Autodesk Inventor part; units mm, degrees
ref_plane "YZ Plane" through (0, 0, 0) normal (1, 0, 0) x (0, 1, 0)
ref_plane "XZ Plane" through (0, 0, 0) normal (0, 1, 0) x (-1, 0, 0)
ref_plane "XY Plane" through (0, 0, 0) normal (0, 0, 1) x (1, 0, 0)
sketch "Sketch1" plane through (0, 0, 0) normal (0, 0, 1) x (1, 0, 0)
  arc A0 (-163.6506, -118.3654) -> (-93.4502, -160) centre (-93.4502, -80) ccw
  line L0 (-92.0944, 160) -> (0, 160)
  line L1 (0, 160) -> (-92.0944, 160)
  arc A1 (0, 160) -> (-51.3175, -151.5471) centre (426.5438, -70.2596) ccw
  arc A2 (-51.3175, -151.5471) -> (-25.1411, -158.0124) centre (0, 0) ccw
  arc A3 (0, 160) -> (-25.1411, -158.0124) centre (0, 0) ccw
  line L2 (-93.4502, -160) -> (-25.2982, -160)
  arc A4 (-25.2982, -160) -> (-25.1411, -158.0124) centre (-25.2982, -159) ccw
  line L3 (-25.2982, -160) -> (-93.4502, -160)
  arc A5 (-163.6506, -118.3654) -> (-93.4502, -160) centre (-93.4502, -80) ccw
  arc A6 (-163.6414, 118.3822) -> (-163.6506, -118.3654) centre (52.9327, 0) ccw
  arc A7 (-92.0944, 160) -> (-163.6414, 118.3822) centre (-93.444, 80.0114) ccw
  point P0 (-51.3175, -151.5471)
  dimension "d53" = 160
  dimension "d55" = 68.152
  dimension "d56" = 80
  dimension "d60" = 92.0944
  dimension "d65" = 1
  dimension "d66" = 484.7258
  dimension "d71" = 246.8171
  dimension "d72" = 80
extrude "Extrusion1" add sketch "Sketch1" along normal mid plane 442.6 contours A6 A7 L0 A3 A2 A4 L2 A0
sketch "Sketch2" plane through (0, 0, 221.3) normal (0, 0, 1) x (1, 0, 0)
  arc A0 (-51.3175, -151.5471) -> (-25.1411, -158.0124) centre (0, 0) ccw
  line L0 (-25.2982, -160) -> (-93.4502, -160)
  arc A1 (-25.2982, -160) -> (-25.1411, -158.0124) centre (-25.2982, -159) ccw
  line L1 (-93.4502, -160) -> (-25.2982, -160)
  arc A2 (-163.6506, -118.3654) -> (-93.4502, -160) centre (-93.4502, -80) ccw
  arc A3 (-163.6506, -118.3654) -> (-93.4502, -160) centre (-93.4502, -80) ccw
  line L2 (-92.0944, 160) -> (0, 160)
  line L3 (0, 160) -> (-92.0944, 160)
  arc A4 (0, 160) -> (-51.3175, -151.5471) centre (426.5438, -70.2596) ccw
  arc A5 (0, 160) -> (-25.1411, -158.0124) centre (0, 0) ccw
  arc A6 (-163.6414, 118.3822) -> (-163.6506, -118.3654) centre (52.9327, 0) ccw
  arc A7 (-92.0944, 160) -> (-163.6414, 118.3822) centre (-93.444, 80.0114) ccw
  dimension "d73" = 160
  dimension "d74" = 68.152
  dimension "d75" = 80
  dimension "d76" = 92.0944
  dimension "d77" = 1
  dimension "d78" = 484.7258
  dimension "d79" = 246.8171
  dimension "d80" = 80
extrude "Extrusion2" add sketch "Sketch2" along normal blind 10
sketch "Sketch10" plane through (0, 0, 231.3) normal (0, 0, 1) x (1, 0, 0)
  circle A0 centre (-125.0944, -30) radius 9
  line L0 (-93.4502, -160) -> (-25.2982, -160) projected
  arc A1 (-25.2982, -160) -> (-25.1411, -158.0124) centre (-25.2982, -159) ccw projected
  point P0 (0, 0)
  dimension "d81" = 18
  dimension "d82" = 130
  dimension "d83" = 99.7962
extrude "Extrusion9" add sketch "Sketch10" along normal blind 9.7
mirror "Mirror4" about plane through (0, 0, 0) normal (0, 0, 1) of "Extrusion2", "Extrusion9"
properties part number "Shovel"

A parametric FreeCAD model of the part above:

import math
import FreeCAD as App
import Part
import Sketcher
Q = App.Units.Quantity

doc = App.newDocument("Part")
body = doc.addObject("PartDesign::Body", "Body")

sketch1 = body.newObject("Sketcher::SketchObject", "Sketch")
sketch1.AttachmentSupport = (doc.getObject("XY_Plane"), [""])
sketch1.MapMode = "FlatFace"
sketch1.addGeometry(Part.ArcOfCircle(Part.Circle(App.Vector(52.9327, 0, 0), App.Vector(0, 0, 1), 246.817111), math.radians(151.338414), math.radians(208.657139)), False)
sketch1.addGeometry(Part.ArcOfCircle(Part.Circle(App.Vector(-93.4502, -80, 0), App.Vector(0, 0, 1), 80), math.radians(-151.342842), math.radians(-90)), False)
sketch1.addGeometry(Part.LineSegment(App.Vector(-93.4502, -160, 0), App.Vector(-25.2982, -160, 0)), False)
sketch1.addGeometry(Part.ArcOfCircle(Part.Circle(App.Vector(-25.2982, -159, 0), App.Vector(0, 0, 1), 1), math.radians(-90), math.radians(80.961546)), False)
sketch1.addGeometry(Part.ArcOfCircle(Part.Circle(App.Vector(-0.001957, -0.006695, 0), App.Vector(0, 0, 1), 159.99306), math.radians(-108.707444), math.radians(-99.040145)), False)
sketch1.addGeometry(Part.ArcOfCircle(Part.Circle(App.Vector(0, 0, 0), App.Vector(0, 0, 1), 160), math.radians(90), math.radians(251.292661)), False)
sketch1.addGeometry(Part.LineSegment(App.Vector(0, 160, 0), App.Vector(-92.0944, 160, 0)), False)
sketch1.addGeometry(Part.ArcOfCircle(Part.Circle(App.Vector(-93.444, 80.0114, 0), App.Vector(0, 0, 1), 79.999985), math.radians(89.033374), math.radians(151.338418)), False)
sketch1.addConstraint(Sketcher.Constraint("Coincident", 0, 2, 1, 1))
sketch1.addConstraint(Sketcher.Constraint("Coincident", 1, 2, 2, 1))
sketch1.addConstraint(Sketcher.Constraint("Coincident", 2, 2, 3, 1))
sketch1.addConstraint(Sketcher.Constraint("Coincident", 3, 2, 4, 2))
sketch1.addConstraint(Sketcher.Constraint("Coincident", 4, 1, 5, 2))
sketch1.addConstraint(Sketcher.Constraint("Coincident", 5, 1, 6, 1))
sketch1.addConstraint(Sketcher.Constraint("Coincident", 6, 2, 7, 1))
sketch1.addConstraint(Sketcher.Constraint("Coincident", 7, 2, 0, 1))
sketch1.addConstraint(Sketcher.Constraint("Horizontal", 2))
sketch1.addConstraint(Sketcher.Constraint("Horizontal", 6))
sketch1.addConstraint(Sketcher.Constraint("Coincident", 5, 3, -1, 1))
sketch1.addConstraint(Sketcher.Constraint("PointOnObject", 0, 3, -1))
sketch1.addConstraint(Sketcher.Constraint("PointOnObject", 5, 1, -2))
sketch1.addConstraint(Sketcher.Constraint("Radius", 1, Q("80 mm")))
sketch1.addConstraint(Sketcher.Constraint("Radius", 3, Q("1 mm")))
sketch1.addConstraint(Sketcher.Constraint("Radius", 5, Q("160 mm")))
sketch1.addConstraint(Sketcher.Constraint("Radius", 7, Q("80 mm")))
sketch1.addConstraint(Sketcher.Constraint("DistanceY", 1, 3, -1, 1, Q("80 mm")))
sketch1.addConstraint(Sketcher.Constraint("Radius", 0, Q("246.817 mm")))
sketch1.addConstraint(Sketcher.Constraint("DistanceX", 2, 1, 2, 2, Q("68.152 mm")))
sketch1.addConstraint(Sketcher.Constraint("DistanceX", 6, 2, 6, 1, Q("92.0944 mm")))
sketch1.addConstraint(Sketcher.Constraint("Radius", 4, Q("159.993 mm")))
sketch1.addConstraint(Sketcher.Constraint("DistanceX", 1, 3, 3, 3, Q("68.152 mm")))
sketch1.addConstraint(Sketcher.Constraint("DistanceX", 1, 2, 3, 3, Q("68.152 mm")))
sketch1.addConstraint(Sketcher.Constraint("DistanceX", 4, 3, -1, 1, Q("0.002 mm")))
sketch1.addConstraint(Sketcher.Constraint("DistanceX", 3, 2, -1, 1, Q("25.141 mm")))
sketch1.addConstraint(Sketcher.Constraint("DistanceY", 4, 1, -1, 1, Q("151.547 mm")))
sketch1.addConstraint(Sketcher.Constraint("DistanceY", 3, 2, 0, 2, Q("39.647 mm")))
sketch1.addConstraint(Sketcher.Constraint("DistanceX", 7, 2, 6, 2, Q("71.547 mm")))
pad1 = body.newObject("PartDesign::Pad", "Pad")
pad1.Profile = sketch1
pad1.Length = 442.6
pad1.Midplane = True

sketch2 = body.newObject("Sketcher::SketchObject", "Sketch001")
sketch2.AttachmentSupport = (doc.getObject("XY_Plane"), [""])
sketch2.MapMode = "FlatFace"
sketch2.AttachmentOffset = App.Placement(App.Vector(0, 0, 221.3), App.Rotation())
sketch2.addGeometry(Part.ArcOfCircle(Part.Circle(App.Vector(426.5438, -70.2596, 0), App.Vector(0, 0, 1), 484.725795), math.radians(151.638656), math.radians(189.653998)), False)
sketch2.addGeometry(Part.LineSegment(App.Vector(0, 160, 0), App.Vector(-92.0944, 160, 0)), False)
sketch2.addGeometry(Part.ArcOfCircle(Part.Circle(App.Vector(-93.444, 80.0114, 0), App.Vector(0, 0, 1), 79.999985), math.radians(89.033374), math.radians(151.338418)), False)
sketch2.addGeometry(Part.ArcOfCircle(Part.Circle(App.Vector(52.9327, 0, 0), App.Vector(0, 0, 1), 246.817111), math.radians(151.338414), math.radians(208.657139)), False)
sketch2.addGeometry(Part.ArcOfCircle(Part.Circle(App.Vector(-93.4502, -80, 0), App.Vector(0, 0, 1), 80), math.radians(-151.342842), math.radians(-90)), False)
sketch2.addGeometry(Part.LineSegment(App.Vector(-93.4502, -160, 0), App.Vector(-25.2982, -160, 0)), False)
sketch2.addGeometry(Part.ArcOfCircle(Part.Circle(App.Vector(-25.2982, -159, 0), App.Vector(0, 0, 1), 1), math.radians(-90), math.radians(80.961546)), False)
sketch2.addGeometry(Part.ArcOfCircle(Part.Circle(App.Vector(-0.001957, -0.006695, 0), App.Vector(0, 0, 1), 159.99306), math.radians(-108.707444), math.radians(-99.040145)), False)
sketch2.addConstraint(Sketcher.Constraint("Coincident", 0, 1, 1, 1))
sketch2.addConstraint(Sketcher.Constraint("Coincident", 1, 2, 2, 1))
sketch2.addConstraint(Sketcher.Constraint("Tangent", 2, 2, 3, 1))
sketch2.addConstraint(Sketcher.Constraint("Tangent", 3, 2, 4, 1))
sketch2.addConstraint(Sketcher.Constraint("Tangent", 4, 2, 5, 1))
sketch2.addConstraint(Sketcher.Constraint("Tangent", 5, 2, 6, 1))
sketch2.addConstraint(Sketcher.Constraint("Tangent", 6, 2, 7, 2))
sketch2.addConstraint(Sketcher.Constraint("Coincident", 7, 1, 0, 2))
sketch2.addConstraint(Sketcher.Constraint("Horizontal", 1))
sketch2.addConstraint(Sketcher.Constraint("Horizontal", 5))
sketch2.addConstraint(Sketcher.Constraint("Equal", 2, 4))
sketch2.addConstraint(Sketcher.Constraint("PointOnObject", 3, 3, -1))
sketch2.addConstraint(Sketcher.Constraint("PointOnObject", 0, 1, -2))
sketch2.addConstraint(Sketcher.Constraint("Radius", 2, Q("80 mm")))
sketch2.addConstraint(Sketcher.Constraint("Radius", 6, Q("1 mm")))
sketch2.addConstraint(Sketcher.Constraint("DistanceY", 4, 3, -1, 1, Q("80 mm")))
sketch2.addConstraint(Sketcher.Constraint("DistanceY", -1, 1, 1, 2, Q("160 mm")))
sketch2.addConstraint(Sketcher.Constraint("Radius", 3, Q("246.817 mm")))
sketch2.addConstraint(Sketcher.Constraint("Radius", 0, Q("484.7258 mm")))
sketch2.addConstraint(Sketcher.Constraint("DistanceX", 5, 1, 5, 2, Q("68.152 mm")))
sketch2.addConstraint(Sketcher.Constraint("DistanceX", 1, 2, 1, 1, Q("92.0944 mm")))
sketch2.addConstraint(Sketcher.Constraint("Radius", 7, Q("159.993 mm")))
sketch2.addConstraint(Sketcher.Constraint("DistanceX", 2, 3, -1, 1, Q("93.444 mm")))
sketch2.addConstraint(Sketcher.Constraint("DistanceX", 7, 3, -1, 1, Q("0.002 mm")))
sketch2.addConstraint(Sketcher.Constraint("DistanceY", 7, 1, -1, 1, Q("151.547 mm")))
pad2 = body.newObject("PartDesign::Pad", "Pad001")
pad2.Profile = sketch2
pad2.Length = 10

sketch3 = body.newObject("Sketcher::SketchObject", "Sketch002")
sketch3.AttachmentSupport = (doc.getObject("XY_Plane"), [""])
sketch3.MapMode = "FlatFace"
sketch3.AttachmentOffset = App.Placement(App.Vector(0, 0, 231.3), App.Rotation())
sketch3.addGeometry(Part.Circle(App.Vector(-125.0944, -30, 0), App.Vector(0, 0, 1), 9), False)
sketch3.addConstraint(Sketcher.Constraint("Diameter", 0, Q("18 mm")))
sketch3.addConstraint(Sketcher.Constraint("DistanceY", 0, 3, -1, 1, Q("30 mm")))
sketch3.addConstraint(Sketcher.Constraint("DistanceX", 0, 3, -1, 1, Q("125.0944 mm")))
pad3 = body.newObject("PartDesign::Pad", "Pad002")
pad3.Profile = sketch3
pad3.Length = 9.7
doc.recompute()

mirrored = body.newObject("PartDesign::Mirrored", "Mirrored")
mirrored.Originals = [pad2, pad3]
mirrored.MirrorPlane = (doc.getObject("XY_Plane"), [""])
body.Tip = mirrored

doc.recompute()
